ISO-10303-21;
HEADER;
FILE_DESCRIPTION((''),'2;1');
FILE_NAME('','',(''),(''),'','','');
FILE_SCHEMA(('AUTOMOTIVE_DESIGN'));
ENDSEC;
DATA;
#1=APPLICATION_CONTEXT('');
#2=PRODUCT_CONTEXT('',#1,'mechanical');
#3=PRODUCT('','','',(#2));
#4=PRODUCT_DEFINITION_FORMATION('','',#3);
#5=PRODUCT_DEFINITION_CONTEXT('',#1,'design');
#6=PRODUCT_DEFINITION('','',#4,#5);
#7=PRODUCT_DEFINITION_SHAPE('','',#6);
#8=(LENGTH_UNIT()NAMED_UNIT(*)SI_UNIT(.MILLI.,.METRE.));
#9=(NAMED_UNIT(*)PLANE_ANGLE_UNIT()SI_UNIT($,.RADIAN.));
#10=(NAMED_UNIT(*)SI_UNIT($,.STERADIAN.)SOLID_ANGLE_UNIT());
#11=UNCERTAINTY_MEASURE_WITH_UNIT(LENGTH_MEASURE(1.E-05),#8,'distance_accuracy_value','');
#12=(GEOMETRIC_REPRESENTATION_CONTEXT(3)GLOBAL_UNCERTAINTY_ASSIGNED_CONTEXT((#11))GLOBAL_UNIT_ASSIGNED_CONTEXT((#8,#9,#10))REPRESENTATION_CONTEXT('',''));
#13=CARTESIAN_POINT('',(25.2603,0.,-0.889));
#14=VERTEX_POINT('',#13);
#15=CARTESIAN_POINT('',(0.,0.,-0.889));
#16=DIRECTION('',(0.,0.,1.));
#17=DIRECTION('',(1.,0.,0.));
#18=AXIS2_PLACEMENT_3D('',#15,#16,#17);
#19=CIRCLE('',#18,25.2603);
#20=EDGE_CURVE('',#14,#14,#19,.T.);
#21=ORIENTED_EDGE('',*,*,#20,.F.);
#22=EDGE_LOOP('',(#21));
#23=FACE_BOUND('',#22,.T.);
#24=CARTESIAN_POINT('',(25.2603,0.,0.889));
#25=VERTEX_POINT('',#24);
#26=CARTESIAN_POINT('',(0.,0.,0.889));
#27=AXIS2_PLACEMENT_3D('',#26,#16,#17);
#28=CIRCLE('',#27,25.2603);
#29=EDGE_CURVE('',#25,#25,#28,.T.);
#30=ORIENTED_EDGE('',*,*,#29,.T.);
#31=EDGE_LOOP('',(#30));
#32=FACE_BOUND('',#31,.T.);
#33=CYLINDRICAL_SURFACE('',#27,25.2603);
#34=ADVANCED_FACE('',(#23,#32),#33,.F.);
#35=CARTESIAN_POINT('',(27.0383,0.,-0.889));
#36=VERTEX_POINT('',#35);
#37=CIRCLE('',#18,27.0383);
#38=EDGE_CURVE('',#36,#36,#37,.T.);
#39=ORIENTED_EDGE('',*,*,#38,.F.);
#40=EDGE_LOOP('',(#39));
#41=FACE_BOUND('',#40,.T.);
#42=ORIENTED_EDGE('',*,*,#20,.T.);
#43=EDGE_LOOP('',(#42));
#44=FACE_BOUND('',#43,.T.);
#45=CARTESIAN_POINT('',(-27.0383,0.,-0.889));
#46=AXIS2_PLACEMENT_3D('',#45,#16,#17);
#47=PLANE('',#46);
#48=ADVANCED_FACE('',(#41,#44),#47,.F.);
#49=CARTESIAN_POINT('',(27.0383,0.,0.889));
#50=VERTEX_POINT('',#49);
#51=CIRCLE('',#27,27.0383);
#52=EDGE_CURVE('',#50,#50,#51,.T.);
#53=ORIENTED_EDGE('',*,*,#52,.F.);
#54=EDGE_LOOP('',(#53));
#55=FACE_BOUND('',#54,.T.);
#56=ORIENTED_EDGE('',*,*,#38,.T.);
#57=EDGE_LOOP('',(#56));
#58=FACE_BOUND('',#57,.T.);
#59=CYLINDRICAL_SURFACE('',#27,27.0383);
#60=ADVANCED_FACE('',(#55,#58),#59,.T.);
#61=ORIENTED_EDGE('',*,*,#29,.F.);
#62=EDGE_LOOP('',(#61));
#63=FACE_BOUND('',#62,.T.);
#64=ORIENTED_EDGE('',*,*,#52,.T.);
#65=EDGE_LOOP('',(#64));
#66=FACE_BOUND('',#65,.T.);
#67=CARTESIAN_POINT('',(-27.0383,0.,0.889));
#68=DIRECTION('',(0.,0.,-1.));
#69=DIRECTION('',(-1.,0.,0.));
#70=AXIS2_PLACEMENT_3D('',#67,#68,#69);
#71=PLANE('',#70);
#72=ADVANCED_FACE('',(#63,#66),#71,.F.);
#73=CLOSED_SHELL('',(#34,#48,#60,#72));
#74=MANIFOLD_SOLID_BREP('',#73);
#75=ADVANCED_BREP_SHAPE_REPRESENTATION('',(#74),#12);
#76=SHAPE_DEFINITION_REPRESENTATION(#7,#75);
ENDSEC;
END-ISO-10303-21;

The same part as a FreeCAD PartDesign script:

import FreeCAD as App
import Part
import Sketcher

V = App.Vector
Q = App.Units.Quantity

doc = App.newDocument("Part")
body = doc.addObject("PartDesign::Body", "Body")

# Sketch on XZ plane
sketch1 = body.newObject("Sketcher::SketchObject", "Sketch")
sketch1.AttachmentSupport = (doc.getObject("XZ_Plane"), [""])
sketch1.MapMode = "FlatFace"
sketch1.addGeometry(Part.LineSegment(V(-27.0383, -0.889, 0), V(-27.0383, 0.889, 0)), False)
sketch1.addGeometry(Part.LineSegment(V(-27.0383, 0.889, 0), V(-25.2603, 0.889, 0)), False)
sketch1.addGeometry(Part.LineSegment(V(-25.2603, 0.889, 0), V(-25.2603, -0.889, 0)), False)
sketch1.addGeometry(Part.LineSegment(V(-25.2603, -0.889, 0), V(-27.0383, -0.889, 0)), False)
sketch1.addConstraint(Sketcher.Constraint("Coincident", 0, 2, 1, 1))
sketch1.addConstraint(Sketcher.Constraint("Coincident", 1, 2, 2, 1))
sketch1.addConstraint(Sketcher.Constraint("Coincident", 2, 2, 3, 1))
sketch1.addConstraint(Sketcher.Constraint("Coincident", 3, 2, 0, 1))
sketch1.addConstraint(Sketcher.Constraint("Vertical", 0))
sketch1.addConstraint(Sketcher.Constraint("Horizontal", 1))
sketch1.addConstraint(Sketcher.Constraint("Vertical", 2))
sketch1.addConstraint(Sketcher.Constraint("Horizontal", 3))
sketch1.addConstraint(Sketcher.Constraint("Equal", 3, 0))
sketch1.addConstraint(Sketcher.Constraint("DistanceX", 1, 1, 1, 2, Q("0.07 in")))
sketch1.addConstraint(Sketcher.Constraint("DistanceY", -1, 1, 0, 2, Q("0.035 in")))
sketch1.addConstraint(Sketcher.Constraint("DistanceX", 0, 2, -1, 1, Q("1.0645 in")))
revolution = body.newObject("PartDesign::Revolution", "Revolution")
revolution.Profile = sketch1
revolution.ReferenceAxis = (sketch1, ["V_Axis"])
revolution.Angle = 360

doc.recompute()
